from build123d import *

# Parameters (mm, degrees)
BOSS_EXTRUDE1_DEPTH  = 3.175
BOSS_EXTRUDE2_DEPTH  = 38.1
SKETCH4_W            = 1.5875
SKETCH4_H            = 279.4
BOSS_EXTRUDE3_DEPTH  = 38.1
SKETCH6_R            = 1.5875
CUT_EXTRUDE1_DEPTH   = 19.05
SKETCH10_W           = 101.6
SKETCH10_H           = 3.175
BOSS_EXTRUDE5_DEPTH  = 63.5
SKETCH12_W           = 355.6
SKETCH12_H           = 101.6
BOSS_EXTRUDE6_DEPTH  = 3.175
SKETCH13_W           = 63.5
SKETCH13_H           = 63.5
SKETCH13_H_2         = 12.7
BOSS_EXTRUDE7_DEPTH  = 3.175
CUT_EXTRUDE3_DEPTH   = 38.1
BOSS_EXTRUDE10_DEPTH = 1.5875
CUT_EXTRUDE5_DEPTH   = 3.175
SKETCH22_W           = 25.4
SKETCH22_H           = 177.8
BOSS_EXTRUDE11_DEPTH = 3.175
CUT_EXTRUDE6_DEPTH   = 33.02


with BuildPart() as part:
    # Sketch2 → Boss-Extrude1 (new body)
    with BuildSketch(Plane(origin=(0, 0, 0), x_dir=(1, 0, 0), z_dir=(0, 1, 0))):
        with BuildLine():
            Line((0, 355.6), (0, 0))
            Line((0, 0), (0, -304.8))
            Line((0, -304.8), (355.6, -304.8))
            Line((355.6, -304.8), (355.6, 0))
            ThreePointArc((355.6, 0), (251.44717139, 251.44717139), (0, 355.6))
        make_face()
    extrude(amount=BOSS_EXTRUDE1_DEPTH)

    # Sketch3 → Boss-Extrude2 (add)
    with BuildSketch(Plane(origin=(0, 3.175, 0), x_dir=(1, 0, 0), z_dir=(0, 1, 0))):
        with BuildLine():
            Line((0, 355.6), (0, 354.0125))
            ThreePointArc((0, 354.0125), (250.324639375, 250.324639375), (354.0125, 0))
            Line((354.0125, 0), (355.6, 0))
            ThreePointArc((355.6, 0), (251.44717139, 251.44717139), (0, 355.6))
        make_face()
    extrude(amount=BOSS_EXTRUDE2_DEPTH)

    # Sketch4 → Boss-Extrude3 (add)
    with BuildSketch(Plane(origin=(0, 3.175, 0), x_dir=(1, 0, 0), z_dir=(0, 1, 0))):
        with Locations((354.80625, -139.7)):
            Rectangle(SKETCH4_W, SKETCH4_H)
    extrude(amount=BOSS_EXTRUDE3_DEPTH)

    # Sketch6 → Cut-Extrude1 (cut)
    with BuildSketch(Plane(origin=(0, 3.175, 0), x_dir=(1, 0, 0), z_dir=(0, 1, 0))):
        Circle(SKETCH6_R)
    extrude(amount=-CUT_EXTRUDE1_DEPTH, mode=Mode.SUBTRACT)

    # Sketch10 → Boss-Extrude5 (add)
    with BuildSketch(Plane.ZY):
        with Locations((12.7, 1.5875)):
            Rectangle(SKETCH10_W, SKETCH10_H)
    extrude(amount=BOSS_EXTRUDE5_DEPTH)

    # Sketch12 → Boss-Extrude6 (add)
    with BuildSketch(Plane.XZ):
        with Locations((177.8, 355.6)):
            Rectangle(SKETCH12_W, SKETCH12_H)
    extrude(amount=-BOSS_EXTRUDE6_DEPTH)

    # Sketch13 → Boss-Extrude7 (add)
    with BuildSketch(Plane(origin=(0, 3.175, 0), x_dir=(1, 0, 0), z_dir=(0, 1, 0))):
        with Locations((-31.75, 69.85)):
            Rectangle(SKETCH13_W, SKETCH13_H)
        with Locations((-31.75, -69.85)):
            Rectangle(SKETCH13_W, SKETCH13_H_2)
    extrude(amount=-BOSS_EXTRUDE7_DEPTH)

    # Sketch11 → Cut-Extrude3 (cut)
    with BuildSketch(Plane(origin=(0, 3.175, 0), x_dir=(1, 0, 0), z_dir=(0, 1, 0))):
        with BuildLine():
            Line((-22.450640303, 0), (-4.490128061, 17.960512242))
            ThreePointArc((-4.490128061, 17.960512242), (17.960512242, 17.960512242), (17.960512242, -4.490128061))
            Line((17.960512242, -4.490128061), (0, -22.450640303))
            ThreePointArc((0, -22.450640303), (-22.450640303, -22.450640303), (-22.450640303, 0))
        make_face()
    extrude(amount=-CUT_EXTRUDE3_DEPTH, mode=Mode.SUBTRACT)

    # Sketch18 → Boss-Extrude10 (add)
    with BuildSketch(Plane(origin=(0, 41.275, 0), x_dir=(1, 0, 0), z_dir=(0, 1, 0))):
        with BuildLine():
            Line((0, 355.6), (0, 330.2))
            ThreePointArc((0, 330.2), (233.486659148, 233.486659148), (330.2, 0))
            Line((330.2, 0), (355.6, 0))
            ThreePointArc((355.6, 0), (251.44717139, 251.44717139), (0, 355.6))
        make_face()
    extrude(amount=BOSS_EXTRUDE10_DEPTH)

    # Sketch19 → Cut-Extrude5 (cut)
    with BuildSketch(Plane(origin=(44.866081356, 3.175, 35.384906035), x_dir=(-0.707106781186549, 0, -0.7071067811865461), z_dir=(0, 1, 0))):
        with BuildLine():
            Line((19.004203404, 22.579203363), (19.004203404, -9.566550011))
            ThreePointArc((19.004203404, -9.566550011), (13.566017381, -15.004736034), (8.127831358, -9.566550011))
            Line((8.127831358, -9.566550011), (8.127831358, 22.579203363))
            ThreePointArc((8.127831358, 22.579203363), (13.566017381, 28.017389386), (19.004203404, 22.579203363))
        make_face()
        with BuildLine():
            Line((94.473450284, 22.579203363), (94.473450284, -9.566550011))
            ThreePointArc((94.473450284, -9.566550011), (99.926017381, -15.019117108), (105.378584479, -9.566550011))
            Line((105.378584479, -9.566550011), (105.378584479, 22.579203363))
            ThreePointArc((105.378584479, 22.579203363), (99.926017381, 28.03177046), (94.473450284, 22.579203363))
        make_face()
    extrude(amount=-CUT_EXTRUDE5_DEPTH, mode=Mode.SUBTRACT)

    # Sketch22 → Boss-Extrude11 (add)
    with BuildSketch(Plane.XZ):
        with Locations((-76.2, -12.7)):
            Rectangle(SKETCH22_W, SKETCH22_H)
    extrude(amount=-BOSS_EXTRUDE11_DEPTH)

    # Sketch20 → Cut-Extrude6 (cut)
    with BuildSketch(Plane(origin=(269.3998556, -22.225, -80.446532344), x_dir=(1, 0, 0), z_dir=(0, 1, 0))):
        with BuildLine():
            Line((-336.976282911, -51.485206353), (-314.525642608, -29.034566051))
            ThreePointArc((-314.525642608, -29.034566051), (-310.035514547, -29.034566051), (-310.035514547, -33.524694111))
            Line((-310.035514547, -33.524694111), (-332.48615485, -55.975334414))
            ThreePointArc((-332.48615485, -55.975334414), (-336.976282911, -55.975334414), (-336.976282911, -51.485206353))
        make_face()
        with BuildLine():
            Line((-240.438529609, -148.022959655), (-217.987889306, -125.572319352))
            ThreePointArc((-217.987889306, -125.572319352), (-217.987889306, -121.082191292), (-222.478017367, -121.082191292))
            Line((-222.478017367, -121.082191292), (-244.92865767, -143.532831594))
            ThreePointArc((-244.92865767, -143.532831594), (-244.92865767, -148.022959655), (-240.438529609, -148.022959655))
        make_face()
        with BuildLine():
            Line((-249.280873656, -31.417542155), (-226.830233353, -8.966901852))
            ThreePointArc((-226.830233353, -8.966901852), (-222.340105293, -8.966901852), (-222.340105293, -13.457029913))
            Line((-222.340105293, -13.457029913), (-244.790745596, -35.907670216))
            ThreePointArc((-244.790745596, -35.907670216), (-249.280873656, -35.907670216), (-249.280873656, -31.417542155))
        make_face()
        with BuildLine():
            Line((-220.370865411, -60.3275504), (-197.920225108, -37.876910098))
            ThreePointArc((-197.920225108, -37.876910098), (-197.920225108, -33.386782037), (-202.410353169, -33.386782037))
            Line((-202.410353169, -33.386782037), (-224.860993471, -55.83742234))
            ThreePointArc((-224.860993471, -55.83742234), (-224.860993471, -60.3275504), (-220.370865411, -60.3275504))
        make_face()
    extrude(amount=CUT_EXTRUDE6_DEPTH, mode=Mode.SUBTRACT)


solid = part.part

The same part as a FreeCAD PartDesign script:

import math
import FreeCAD as App
import Part
import Sketcher
from FreeCAD import Vector
Q = App.Units.Quantity


def add_polygon(sketch, points):
    """Adds a closed chain of lines whose ends are joined by coincident constraints."""
    first, n = sketch.GeometryCount, len(points)
    for a, b in zip(points, points[1:] + points[:1]):
        sketch.addGeometry(Part.LineSegment(App.Vector(*a, 0), App.Vector(*b, 0)), False)
    for i in range(n):
        sketch.addConstraint(Sketcher.Constraint("Coincident", first + i, 2, first + (i + 1) % n, 1))

doc = App.newDocument("Part")
params = doc.addObject("Spreadsheet::Sheet", "Params")
for row, (alias, value) in enumerate([
    ("sketch1_radius", "14 in"),
    ("sketch1_height", "26 in"),
    ("pad1_length", "0.125 in"),
    ("sketch2_radius", "14 in"),
    ("sketch2_radius2", "13.9375 in"),
    ("pad2_length", "1.5 in"),
    ("sketch3_height", "11 in"),
    ("sketch3_width", "0.0625 in"),
    ("pad3_length", "1.5 in"),
    ("sketch4_diameter", "0.125 in"),
    ("pocket1_length", "0.75 in"),
    ("sketch5_height", "4 in"),
    ("sketch5_width", "0.125 in"),
    ("pad4_length", "2.5 in"),
    ("sketch6_width", "14 in"),
    ("sketch6_height", "4 in"),
    ("pad5_length", "0.125 in"),
    ("sketch7_width", "2.5 in"),
    ("sketch7_height", "0.5 in"),
    ("pad6_length", "0.125 in"),
    ("sketch8_length", "1 in"),
    ("sketch8_radius", "0.625 in"),
    ("pocket2_length", "1.5 in"),
    ("sketch9_radius", "13 in"),
    ("sketch9_radius2", "14 in"),
    ("pad7_length", "0.0625 in"),
    ("pocket3_length", "0.125 in"),
    ("sketch11_width", "1 in"),
    ("sketch11_height", "7 in"),
    ("pad8_length", "0.125 in"),
    ("sketch12_radius", "0.125 in"),
    ("sketch12_length", "1.25 in"),
    ("pocket4_length", "1.3 in"),
], start=1):
    params.set(f"A{row}", alias)
    params.set(f"B{row}", "=" + value)
    params.setAlias(f"B{row}", alias)

body = doc.addObject("PartDesign::Body", "Body")

sketch1 = body.newObject("Sketcher::SketchObject", "Sketch")
sketch1.AttachmentSupport = (doc.getObject("XZ_Plane"), [""])
sketch1.MapMode = "FlatFace"
sketch1.addGeometry(Part.LineSegment(Vector(0, -356, 0), Vector(0, 305, 0)), False)
sketch1.addGeometry(Part.LineSegment(Vector(0, 305, 0), Vector(356, 305, 0)), False)
sketch1.addGeometry(Part.LineSegment(Vector(356, 305, 0), Vector(356, 0, 0)), False)
sketch1.addGeometry(Part.ArcOfCircle(Part.Circle(Vector(0, 0, 0), Vector(0, 0, 1), 356), math.radians(-90), math.radians(0)), False)
sketch1.addConstraint(Sketcher.Constraint("Coincident", 0, 2, 1, 1))
sketch1.addConstraint(Sketcher.Constraint("Coincident", 1, 2, 2, 1))
sketch1.addConstraint(Sketcher.Constraint("Tangent", 2, 2, 3, 2))
sketch1.addConstraint(Sketcher.Constraint("Coincident", 3, 1, 0, 1))
sketch1.addConstraint(Sketcher.Constraint("Vertical", 0))
sketch1.addConstraint(Sketcher.Constraint("Horizontal", 1))
sketch1.addConstraint(Sketcher.Constraint("Vertical", 2))
sketch1.addConstraint(Sketcher.Constraint("Coincident", 3, 3, -1, 1))
sketch1.addConstraint(Sketcher.Constraint("PointOnObject", 0, 2, -2))
sketch1.addConstraint(Sketcher.Constraint("Radius", 3, Q("14 in")))
sketch1.addConstraint(Sketcher.Constraint("DistanceY", 0, 1, 0, 2, Q("26 in")))
sketch1.setExpression("Constraints[9]", "Params.sketch1_radius")
sketch1.setExpression("Constraints[10]", "Params.sketch1_height")
pad1 = body.newObject("PartDesign::Pad", "Pad")
pad1.Profile = sketch1
pad1.setExpression("Length", "Params.pad1_length")
pad1.Reversed = True

sketch2 = body.newObject("Sketcher::SketchObject", "Sketch001")
sketch2.AttachmentSupport = (doc.getObject("XZ_Plane"), [""])
sketch2.MapMode = "FlatFace"
sketch2.AttachmentOffset = App.Placement(Vector(0, 0, -0.125 * 25.4), App.Rotation())
sketch2.addGeometry(Part.LineSegment(Vector(0, -355.6, 0), Vector(0, -354, 0)), False)
sketch2.addGeometry(Part.ArcOfCircle(Part.Circle(Vector(0, 0, 0), Vector(0, 0, 1), 354), math.radians(-90), math.radians(0)), False)
sketch2.addGeometry(Part.LineSegment(Vector(354, 0, 0), Vector(355.6, 0, 0)), False)
sketch2.addGeometry(Part.ArcOfCircle(Part.Circle(Vector(0, 0, 0), Vector(0, 0, 1), 355.6), math.radians(-90), math.radians(0)), False)
sketch2.addConstraint(Sketcher.Constraint("Coincident", 0, 2, 1, 1))
sketch2.addConstraint(Sketcher.Constraint("Coincident", 1, 2, 2, 1))
sketch2.addConstraint(Sketcher.Constraint("Coincident", 2, 2, 3, 2))
sketch2.addConstraint(Sketcher.Constraint("Coincident", 3, 1, 0, 1))
sketch2.addConstraint(Sketcher.Constraint("Vertical", 0))
sketch2.addConstraint(Sketcher.Constraint("Horizontal", 2))
sketch2.addConstraint(Sketcher.Constraint("Coincident", 1, 3, -1, 1))
sketch2.addConstraint(Sketcher.Constraint("Coincident", 3, 3, -1, 1))
sketch2.addConstraint(Sketcher.Constraint("PointOnObject", 0, 2, -2))
sketch2.addConstraint(Sketcher.Constraint("PointOnObject", 2, 2, -1))
sketch2.addConstraint(Sketcher.Constraint("Radius", 3, Q("14 in")))
sketch2.addConstraint(Sketcher.Constraint("Radius", 1, Q("13.9375 in")))
sketch2.setExpression("Constraints[10]", "Params.sketch2_radius")
sketch2.setExpression("Constraints[11]", "Params.sketch2_radius2")
pad2 = body.newObject("PartDesign::Pad", "Pad001")
pad2.Profile = sketch2
pad2.setExpression("Length", "Params.pad2_length")
pad2.Reversed = True

sketch3 = body.newObject("Sketcher::SketchObject", "Sketch002")
sketch3.AttachmentSupport = (doc.getObject("XZ_Plane"), [""])
sketch3.MapMode = "FlatFace"
sketch3.AttachmentOffset = App.Placement(Vector(0, 0, -0.125 * 25.4), App.Rotation())
add_polygon(sketch3, [(354, 0), (354, 279.4), (355.6, 279.4), (355.6, 0)])
sketch3.addConstraint(Sketcher.Constraint("Vertical", 0))
sketch3.addConstraint(Sketcher.Constraint("Horizontal", 1))
sketch3.addConstraint(Sketcher.Constraint("Vertical", 2))
sketch3.addConstraint(Sketcher.Constraint("Horizontal", 3))
sketch3.addConstraint(Sketcher.Constraint("PointOnObject", 2, 2, -1))
sketch3.addConstraint(Sketcher.Constraint("DistanceY", 0, 1, 0, 2, Q("11 in")))
sketch3.addConstraint(Sketcher.Constraint("DistanceX", -1, 1, 1, 2, Q("14 in")))
sketch3.addConstraint(Sketcher.Constraint("DistanceX", 1, 1, 1, 2, Q("0.0625 in")))
sketch3.setExpression("Constraints[9]", "Params.sketch3_height")
sketch3.setExpression("Constraints[11]", "Params.sketch3_width")
pad3 = body.newObject("PartDesign::Pad", "Pad002")
pad3.Profile = sketch3
pad3.setExpression("Length", "Params.pad3_length")
pad3.Reversed = True

sketch4 = body.newObject("Sketcher::SketchObject", "Sketch003")
sketch4.AttachmentSupport = (doc.getObject("XZ_Plane"), [""])
sketch4.MapMode = "FlatFace"
sketch4.AttachmentOffset = App.Placement(Vector(0, 0, -0.125 * 25.4), App.Rotation())
sketch4.addGeometry(Part.Circle(Vector(0, 0, 0), Vector(0, 0, 1), 1.6), False)
sketch4.addConstraint(Sketcher.Constraint("Coincident", 0, 3, -1, 1))
sketch4.addConstraint(Sketcher.Constraint("Diameter", 0, Q("0.125 in")))
sketch4.setExpression("Constraints[1]", "Params.sketch4_diameter")
pocket1 = body.newObject("PartDesign::Pocket", "Pocket")
pocket1.Profile = sketch4
pocket1.setExpression("Length", "Params.pocket1_length")
pocket1.Reversed = True

sketch5 = body.newObject("Sketcher::SketchObject", "Sketch004")
sketch5.AttachmentSupport = (doc.getObject("YZ_Plane"), [""])
sketch5.MapMode = "FlatFace"
add_polygon(sketch5, [(3.2, -38.1), (0, -38.1), (0, 63.5), (3.2, 63.5)])
sketch5.addConstraint(Sketcher.Constraint("Horizontal", 0))
sketch5.addConstraint(Sketcher.Constraint("Vertical", 1))
sketch5.addConstraint(Sketcher.Constraint("Horizontal", 2))
sketch5.addConstraint(Sketcher.Constraint("Vertical", 3))
sketch5.addConstraint(Sketcher.Constraint("PointOnObject", 0, 2, -2))
sketch5.addConstraint(Sketcher.Constraint("DistanceY", 1, 1, 1, 2, Q("4 in")))
sketch5.addConstraint(Sketcher.Constraint("DistanceY", 0, 2, -1, 1, Q("1.5 in")))
sketch5.addConstraint(Sketcher.Constraint("DistanceX", 0, 2, 0, 1, Q("0.125 in")))
sketch5.setExpression("Constraints[9]", "Params.sketch5_height")
sketch5.setExpression("Constraints[11]", "Params.sketch5_width")
pad4 = body.newObject("PartDesign::Pad", "Pad003")
pad4.Profile = sketch5
pad4.setExpression("Length", "Params.pad4_length")
pad4.Reversed = True

sketch6 = body.newObject("Sketcher::SketchObject", "Sketch005")
sketch6.AttachmentSupport = (doc.getObject("XZ_Plane"), [""])
sketch6.MapMode = "FlatFace"
add_polygon(sketch6, [(0, 406), (0, 305), (356, 305), (356, 406)])
sketch6.addConstraint(Sketcher.Constraint("Vertical", 0))
sketch6.addConstraint(Sketcher.Constraint("Horizontal", 1))
sketch6.addConstraint(Sketcher.Constraint("Vertical", 2))
sketch6.addConstraint(Sketcher.Constraint("Horizontal", 3))
sketch6.addConstraint(Sketcher.Constraint("PointOnObject", 0, 2, -2))
sketch6.addConstraint(Sketcher.Constraint("DistanceX", 1, 1, 1, 2, Q("14 in")))
sketch6.addConstraint(Sketcher.Constraint("DistanceY", 0, 2, 0, 1, Q("4 in")))
sketch6.addConstraint(Sketcher.Constraint("DistanceY", -1, 1, 0, 2, Q("12 in")))
sketch6.setExpression("Constraints[9]", "Params.sketch6_width")
sketch6.setExpression("Constraints[10]", "Params.sketch6_height")
pad5 = body.newObject("PartDesign::Pad", "Pad004")
pad5.Profile = sketch6
pad5.setExpression("Length", "Params.pad5_length")
pad5.Reversed = True

sketch7 = body.newObject("Sketcher::SketchObject", "Sketch006")
sketch7.AttachmentSupport = (doc.getObject("XZ_Plane"), [""])
sketch7.MapMode = "FlatFace"
sketch7.AttachmentOffset = App.Placement(Vector(0, 0, -0.125 * 25.4), App.Rotation())
add_polygon(sketch7, [(-64, -102), (-64, -38), (0, -38), (0, -102)])
add_polygon(sketch7, [(-64, 64), (-64, 76), (0, 76), (0, 64)])
sketch7.addConstraint(Sketcher.Constraint("Vertical", 0))
sketch7.addConstraint(Sketcher.Constraint("Horizontal", 1))
sketch7.addConstraint(Sketcher.Constraint("Vertical", 2))
sketch7.addConstraint(Sketcher.Constraint("Horizontal", 3))
sketch7.addConstraint(Sketcher.Constraint("Vertical", 4))
sketch7.addConstraint(Sketcher.Constraint("Horizontal", 5))
sketch7.addConstraint(Sketcher.Constraint("Vertical", 6))
sketch7.addConstraint(Sketcher.Constraint("Horizontal", 7))
sketch7.addConstraint(Sketcher.Constraint("PointOnObject", 1, 2, -2))
sketch7.addConstraint(Sketcher.Constraint("PointOnObject", 5, 2, -2))
sketch7.addConstraint(Sketcher.Constraint("Vertical", 3, 2, 4, 2))
sketch7.addConstraint(Sketcher.Constraint("Equal", 7, 0))
sketch7.addConstraint(Sketcher.Constraint("DistanceX", 1, 1, 1, 2, Q("2.5 in")))
sketch7.addConstraint(Sketcher.Constraint("DistanceY", 4, 1, 4, 2, Q("0.5 in")))
sketch7.addConstraint(Sketcher.Constraint("DistanceY", 2, 2, -1, 1, Q("4 in")))
sketch7.addConstraint(Sketcher.Constraint("DistanceY", -1, 1, 4, 2, Q("3 in")))
sketch7.setExpression("Constraints[20]", "Params.sketch7_width")
sketch7.setExpression("Constraints[21]", "Params.sketch7_height")
pad6 = body.newObject("PartDesign::Pad", "Pad005")
pad6.Profile = sketch7
pad6.setExpression("Length", "Params.pad6_length")

sketch8 = body.newObject("Sketcher::SketchObject", "Sketch007")
sketch8.AttachmentSupport = (doc.getObject("XZ_Plane"), [""])
sketch8.MapMode = "FlatFace"
sketch8.AttachmentOffset = App.Placement(Vector(0, 0, -0.125 * 25.4), App.Rotation())
sketch8.addGeometry(Part.LineSegment(Vector(-4, -18, 0), Vector(-22, 0, 0)), False)
sketch8.addGeometry(Part.ArcOfCircle(Part.Circle(Vector(-11, 11, 0), Vector(0, 0, 1), 16), math.radians(45), math.radians(225)), False)
sketch8.addGeometry(Part.LineSegment(Vector(0, 22, 0), Vector(18, 4, 0)), False)
sketch8.addGeometry(Part.ArcOfCircle(Part.Circle(Vector(7, -7, 0), Vector(0, 0, 1), 16), math.radians(-135), math.radians(45)), False)
sketch8.addConstraint(Sketcher.Constraint("Tangent", 0, 2, 1, 2))
sketch8.addConstraint(Sketcher.Constraint("Tangent", 1, 1, 2, 1))
sketch8.addConstraint(Sketcher.Constraint("Tangent", 2, 2, 3, 2))
sketch8.addConstraint(Sketcher.Constraint("Tangent", 3, 1, 0, 1))
sketch8.addConstraint(Sketcher.Constraint("Equal", 1, 3))
sketch8.addConstraint(Sketcher.Constraint("PointOnObject", 0, 2, -1))
sketch8.addConstraint(Sketcher.Constraint("PointOnObject", 1, 1, -2))
sketch8.addConstraint(Sketcher.Constraint("Distance", 0, Q("1 in")))
sketch8.addConstraint(Sketcher.Constraint("Angle", 0, Q("135 deg")))
sketch8.addConstraint(Sketcher.Constraint("Radius", 1, Q("0.625 in")))
sketch8.setExpression("Constraints[7]", "Params.sketch8_length")
sketch8.setExpression("Constraints[9]", "Params.sketch8_radius")
pocket2 = body.newObject("PartDesign::Pocket", "Pocket001")
pocket2.Profile = sketch8
pocket2.setExpression("Length", "Params.pocket2_length")
pocket2.Reversed = True

sketch9 = body.newObject("Sketcher::SketchObject", "Sketch008")
sketch9.AttachmentSupport = (doc.getObject("XZ_Plane"), [""])
sketch9.MapMode = "FlatFace"
sketch9.AttachmentOffset = App.Placement(Vector(0, 0, -1.625 * 25.4), App.Rotation())
sketch9.addGeometry(Part.LineSegment(Vector(0, -356, 0), Vector(0, -330, 0)), False)
sketch9.addGeometry(Part.ArcOfCircle(Part.Circle(Vector(0, 0, 0), Vector(0, 0, 1), 330), math.radians(-90), math.radians(0)), False)
sketch9.addGeometry(Part.LineSegment(Vector(330, 0, 0), Vector(356, 0, 0)), False)
sketch9.addGeometry(Part.ArcOfCircle(Part.Circle(Vector(0, 0, 0), Vector(0, 0, 1), 356), math.radians(-90), math.radians(0)), False)
sketch9.addConstraint(Sketcher.Constraint("Coincident", 0, 2, 1, 1))
sketch9.addConstraint(Sketcher.Constraint("Coincident", 1, 2, 2, 1))
sketch9.addConstraint(Sketcher.Constraint("Coincident", 2, 2, 3, 2))
sketch9.addConstraint(Sketcher.Constraint("Coincident", 3, 1, 0, 1))
sketch9.addConstraint(Sketcher.Constraint("Vertical", 0))
sketch9.addConstraint(Sketcher.Constraint("Horizontal", 2))
sketch9.addConstraint(Sketcher.Constraint("Coincident", 1, 3, -1, 1))
sketch9.addConstraint(Sketcher.Constraint("Coincident", 3, 3, -1, 1))
sketch9.addConstraint(Sketcher.Constraint("PointOnObject", 0, 2, -2))
sketch9.addConstraint(Sketcher.Constraint("PointOnObject", 1, 2, -1))
sketch9.addConstraint(Sketcher.Constraint("Radius", 1, Q("13 in")))
sketch9.addConstraint(Sketcher.Constraint("Radius", 3, Q("14 in")))
sketch9.setExpression("Constraints[10]", "Params.sketch9_radius")
sketch9.setExpression("Constraints[11]", "Params.sketch9_radius2")
pad7 = body.newObject("PartDesign::Pad", "Pad006")
pad7.Profile = sketch9
pad7.setExpression("Length", "Params.pad7_length")
pad7.Reversed = True

sketch10 = body.newObject("Sketcher::SketchObject", "Sketch009")
sketch10.AttachmentSupport = (doc.getObject("XZ_Plane"), [""])
sketch10.MapMode = "FlatFace"
sketch10.AttachmentOffset = App.Placement(Vector(0, 0, -0.125 * 25.4), App.Rotation())
sketch10.addGeometry(Part.LineSegment(Vector(38, 15, 0), Vector(15, 38, 0)), False)
sketch10.addGeometry(Part.ArcOfCircle(Part.Circle(Vector(19, 42, 0), Vector(0, 0, 1), 5), math.radians(45), math.radians(225)), False)
sketch10.addGeometry(Part.LineSegment(Vector(23, 46, 0), Vector(46, 23, 0)), False)
sketch10.addGeometry(Part.ArcOfCircle(Part.Circle(Vector(42, 19, 0), Vector(0, 0, 1), 5), math.radians(-135), math.radians(45)), False)
sketch10.addGeometry(Part.LineSegment(Vector(-38, -15, 0), Vector(-15, -38, 0)), False)
sketch10.addGeometry(Part.ArcOfCircle(Part.Circle(Vector(-19, -42, 0), Vector(0, 0, 1), 5), math.radians(-135), math.radians(45)), False)
sketch10.addGeometry(Part.LineSegment(Vector(-23, -46, 0), Vector(-46, -23, 0)), False)
sketch10.addGeometry(Part.ArcOfCircle(Part.Circle(Vector(-42, -19, 0), Vector(0, 0, 1), 5), math.radians(45), math.radians(225)), False)
sketch10.addConstraint(Sketcher.Constraint("Tangent", 0, 2, 1, 2))
sketch10.addConstraint(Sketcher.Constraint("Tangent", 1, 1, 2, 1))
sketch10.addConstraint(Sketcher.Constraint("Tangent", 2, 2, 3, 2))
sketch10.addConstraint(Sketcher.Constraint("Tangent", 3, 1, 0, 1))
sketch10.addConstraint(Sketcher.Constraint("Tangent", 4, 2, 5, 2))
sketch10.addConstraint(Sketcher.Constraint("Tangent", 5, 1, 6, 1))
sketch10.addConstraint(Sketcher.Constraint("Tangent", 6, 2, 7, 2))
sketch10.addConstraint(Sketcher.Constraint("Tangent", 7, 1, 4, 1))
sketch10.addConstraint(Sketcher.Constraint("Equal", 1, 3))
sketch10.addConstraint(Sketcher.Constraint("Equal", 5, 7))
sketch10.addConstraint(Sketcher.Constraint("Parallel", 2, 4))
sketch10.addConstraint(Sketcher.Constraint("Equal", 2, 4))
sketch10.addConstraint(Sketcher.Constraint("Angle", 0, Q("135 deg")))
sketch10.addConstraint(Sketcher.Constraint("Radius", 1, Q("5.438186 mm")))
sketch10.addConstraint(Sketcher.Constraint("Radius", 5, Q("5.452567 mm")))
sketch10.addConstraint(Sketcher.Constraint("DistanceY", 3, 3, 0, 2, Q("18.885102 mm")))
sketch10.addConstraint(Sketcher.Constraint("DistanceY", 5, 3, 1, 1, Q("87.6416 mm")))
sketch10.addConstraint(Sketcher.Constraint("DistanceX", -1, 1, 1, 3, Q("19.307551 mm")))
sketch10.addConstraint(Sketcher.Constraint("DistanceY", -1, 1, 1, 3, Q("41.758191 mm")))
sketch10.addConstraint(Sketcher.Constraint("DistanceX", 5, 3, -1, 1, Q("19.027711 mm")))
pocket3 = body.newObject("PartDesign::Pocket", "Pocket002")
pocket3.Profile = sketch10
pocket3.setExpression("Length", "Params.pocket3_length")
pocket3.Reversed = True

sketch11 = body.newObject("Sketcher::SketchObject", "Sketch010")
sketch11.AttachmentSupport = (doc.getObject("XZ_Plane"), [""])
sketch11.MapMode = "FlatFace"
add_polygon(sketch11, [(-89, 76), (-89, -102), (-64, -102), (-64, 76)])
sketch11.addConstraint(Sketcher.Constraint("Vertical", 0))
sketch11.addConstraint(Sketcher.Constraint("Horizontal", 1))
sketch11.addConstraint(Sketcher.Constraint("Vertical", 2))
sketch11.addConstraint(Sketcher.Constraint("Horizontal", 3))
sketch11.addConstraint(Sketcher.Constraint("DistanceX", 1, 1, 1, 2, Q("1 in")))
sketch11.addConstraint(Sketcher.Constraint("DistanceY", 0, 2, 0, 1, Q("7 in")))
sketch11.addConstraint(Sketcher.Constraint("DistanceY", 0, 2, -1, 1, Q("4 in")))
sketch11.addConstraint(Sketcher.Constraint("DistanceX", 0, 2, -1, 1, Q("3.5 in")))
sketch11.setExpression("Constraints[8]", "Params.sketch11_width")
sketch11.setExpression("Constraints[9]", "Params.sketch11_height")
pad8 = body.newObject("PartDesign::Pad", "Pad007")
pad8.Profile = sketch11
pad8.setExpression("Length", "Params.pad8_length")
pad8.Reversed = True

sketch12 = body.newObject("Sketcher::SketchObject", "Sketch011")
sketch12.AttachmentSupport = (doc.getObject("XZ_Plane"), [""])
sketch12.MapMode = "FlatFace"
sketch12.AttachmentOffset = App.Placement(Vector(0, 0, 0.875 * 25.4), App.Rotation())
sketch12.addGeometry(Part.LineSegment(Vector(-45.1, -51.4, 0), Vector(-67.6, -29, 0)), False)
sketch12.addGeometry(Part.ArcOfCircle(Part.Circle(Vector(-65.3, -26.7, 0), Vector(0, 0, 1), 3.2), math.radians(45), math.radians(225)), False)
sketch12.addGeometry(Part.LineSegment(Vector(-63.1, -24.5, 0), Vector(-40.6, -46.9, 0)), False)
sketch12.addGeometry(Part.ArcOfCircle(Part.Circle(Vector(-42.9, -49.2, 0), Vector(0, 0, 1), 3.2), math.radians(-135), math.radians(45)), False)
sketch12.addGeometry(Part.LineSegment(Vector(29, 67.6, 0), Vector(51.4, 45.1, 0)), False)
sketch12.addGeometry(Part.ArcOfCircle(Part.Circle(Vector(49.2, 42.9, 0), Vector(0, 0, 1), 3.2), math.radians(-135), math.radians(45)), False)
sketch12.addGeometry(Part.LineSegment(Vector(46.9, 40.6, 0), Vector(24.5, 63.1, 0)), False)
sketch12.addGeometry(Part.ArcOfCircle(Part.Circle(Vector(26.7, 65.3, 0), Vector(0, 0, 1), 3.2), math.radians(45), math.radians(225)), False)
sketch12.addGeometry(Part.LineSegment(Vector(42.6, -71.5, 0), Vector(20.1, -49, 0)), False)
sketch12.addGeometry(Part.ArcOfCircle(Part.Circle(Vector(22.4, -46.8, 0), Vector(0, 0, 1), 3.2), math.radians(45), math.radians(225)), False)
sketch12.addGeometry(Part.LineSegment(Vector(24.6, -44.5, 0), Vector(47.1, -67, 0)), False)
sketch12.addGeometry(Part.ArcOfCircle(Part.Circle(Vector(44.8, -69.2, 0), Vector(0, 0, 1), 3.2), math.radians(-135), math.radians(45)), False)
sketch12.addGeometry(Part.LineSegment(Vector(49, -20.1, 0), Vector(71.5, -42.6, 0)), False)
sketch12.addGeometry(Part.ArcOfCircle(Part.Circle(Vector(69.2, -44.8, 0), Vector(0, 0, 1), 3.2), math.radians(-135), math.radians(45)), False)
sketch12.addGeometry(Part.LineSegment(Vector(67, -47.1, 0), Vector(44.5, -24.6, 0)), False)
sketch12.addGeometry(Part.ArcOfCircle(Part.Circle(Vector(46.8, -22.4, 0), Vector(0, 0, 1), 3.2), math.radians(45), math.radians(225)), False)
sketch12.addConstraint(Sketcher.Constraint("Tangent", 0, 2, 1, 2))
sketch12.addConstraint(Sketcher.Constraint("Tangent", 1, 1, 2, 1))
sketch12.addConstraint(Sketcher.Constraint("Tangent", 2, 2, 3, 2))
sketch12.addConstraint(Sketcher.Constraint("Tangent", 3, 1, 0, 1))
sketch12.addConstraint(Sketcher.Constraint("Tangent", 4, 2, 5, 2))
sketch12.addConstraint(Sketcher.Constraint("Tangent", 5, 1, 6, 1))
sketch12.addConstraint(Sketcher.Constraint("Tangent", 6, 2, 7, 2))
sketch12.addConstraint(Sketcher.Constraint("Tangent", 7, 1, 4, 1))
sketch12.addConstraint(Sketcher.Constraint("Tangent", 8, 2, 9, 2))
sketch12.addConstraint(Sketcher.Constraint("Tangent", 9, 1, 10, 1))
sketch12.addConstraint(Sketcher.Constraint("Tangent", 10, 2, 11, 2))
sketch12.addConstraint(Sketcher.Constraint("Tangent", 11, 1, 8, 1))
sketch12.addConstraint(Sketcher.Constraint("Tangent", 12, 2, 13, 2))
sketch12.addConstraint(Sketcher.Constraint("Tangent", 13, 1, 14, 1))
sketch12.addConstraint(Sketcher.Constraint("Tangent", 14, 2, 15, 2))
sketch12.addConstraint(Sketcher.Constraint("Tangent", 15, 1, 12, 1))
sketch12.addConstraint(Sketcher.Constraint("Equal", 1, 3))
sketch12.addConstraint(Sketcher.Constraint("Equal", 3, 5))
sketch12.addConstraint(Sketcher.Constraint("Equal", 5, 7))
sketch12.addConstraint(Sketcher.Constraint("Equal", 7, 9))
sketch12.addConstraint(Sketcher.Constraint("Equal", 9, 11))
sketch12.addConstraint(Sketcher.Constraint("Equal", 11, 13))
sketch12.addConstraint(Sketcher.Constraint("Equal", 13, 15))
sketch12.addConstraint(Sketcher.Constraint("Parallel", 2, 4))
sketch12.addConstraint(Sketcher.Constraint("Parallel", 6, 8))
sketch12.addConstraint(Sketcher.Constraint("Parallel", 10, 12))
sketch12.addConstraint(Sketcher.Constraint("Equal", 2, 4))
sketch12.addConstraint(Sketcher.Constraint("Equal", 6, 8))
sketch12.addConstraint(Sketcher.Constraint("Equal", 10, 12))
sketch12.addConstraint(Sketcher.Constraint("Angle", 0, Q("135 deg")))
sketch12.addConstraint(Sketcher.Constraint("Radius", 1, Q("0.125 in")))
sketch12.addConstraint(Sketcher.Constraint("Distance", 0, Q("1.25 in")))
sketch12.addConstraint(Sketcher.Constraint("DistanceX", 1, 1, -1, 1, Q("63.086299 mm")))
sketch12.addConstraint(Sketcher.Constraint("DistanceY", -1, 1, 6, 2, Q("63.086299 mm")))
sketch12.addConstraint(Sketcher.Constraint("DistanceY", 9, 3, 0, 2, Q("17.8226 mm")))
sketch12.addConstraint(Sketcher.Constraint("DistanceX", 4, 2, 13, 3, Q("17.8226 mm")))
sketch12.addConstraint(Sketcher.Constraint("DistanceY", 1, 3, -1, 1, Q("26.716262 mm")))
sketch12.addConstraint(Sketcher.Constraint("DistanceX", -1, 1, 7, 3, Q("26.716262 mm")))
sketch12.addConstraint(Sketcher.Constraint("DistanceX", -1, 1, 8, 2, Q("20.118982 mm")))
sketch12.addConstraint(Sketcher.Constraint("DistanceY", 13, 1, -1, 1, Q("47.05975 mm")))
sketch12.setExpression("Constraints[30]", "Params.sketch12_radius")
sketch12.setExpression("Constraints[31]", "Params.sketch12_length")
pocket4 = body.newObject("PartDesign::Pocket", "Pocket003")
pocket4.Profile = sketch12
pocket4.setExpression("Length", "Params.pocket4_length")

doc.recompute()
